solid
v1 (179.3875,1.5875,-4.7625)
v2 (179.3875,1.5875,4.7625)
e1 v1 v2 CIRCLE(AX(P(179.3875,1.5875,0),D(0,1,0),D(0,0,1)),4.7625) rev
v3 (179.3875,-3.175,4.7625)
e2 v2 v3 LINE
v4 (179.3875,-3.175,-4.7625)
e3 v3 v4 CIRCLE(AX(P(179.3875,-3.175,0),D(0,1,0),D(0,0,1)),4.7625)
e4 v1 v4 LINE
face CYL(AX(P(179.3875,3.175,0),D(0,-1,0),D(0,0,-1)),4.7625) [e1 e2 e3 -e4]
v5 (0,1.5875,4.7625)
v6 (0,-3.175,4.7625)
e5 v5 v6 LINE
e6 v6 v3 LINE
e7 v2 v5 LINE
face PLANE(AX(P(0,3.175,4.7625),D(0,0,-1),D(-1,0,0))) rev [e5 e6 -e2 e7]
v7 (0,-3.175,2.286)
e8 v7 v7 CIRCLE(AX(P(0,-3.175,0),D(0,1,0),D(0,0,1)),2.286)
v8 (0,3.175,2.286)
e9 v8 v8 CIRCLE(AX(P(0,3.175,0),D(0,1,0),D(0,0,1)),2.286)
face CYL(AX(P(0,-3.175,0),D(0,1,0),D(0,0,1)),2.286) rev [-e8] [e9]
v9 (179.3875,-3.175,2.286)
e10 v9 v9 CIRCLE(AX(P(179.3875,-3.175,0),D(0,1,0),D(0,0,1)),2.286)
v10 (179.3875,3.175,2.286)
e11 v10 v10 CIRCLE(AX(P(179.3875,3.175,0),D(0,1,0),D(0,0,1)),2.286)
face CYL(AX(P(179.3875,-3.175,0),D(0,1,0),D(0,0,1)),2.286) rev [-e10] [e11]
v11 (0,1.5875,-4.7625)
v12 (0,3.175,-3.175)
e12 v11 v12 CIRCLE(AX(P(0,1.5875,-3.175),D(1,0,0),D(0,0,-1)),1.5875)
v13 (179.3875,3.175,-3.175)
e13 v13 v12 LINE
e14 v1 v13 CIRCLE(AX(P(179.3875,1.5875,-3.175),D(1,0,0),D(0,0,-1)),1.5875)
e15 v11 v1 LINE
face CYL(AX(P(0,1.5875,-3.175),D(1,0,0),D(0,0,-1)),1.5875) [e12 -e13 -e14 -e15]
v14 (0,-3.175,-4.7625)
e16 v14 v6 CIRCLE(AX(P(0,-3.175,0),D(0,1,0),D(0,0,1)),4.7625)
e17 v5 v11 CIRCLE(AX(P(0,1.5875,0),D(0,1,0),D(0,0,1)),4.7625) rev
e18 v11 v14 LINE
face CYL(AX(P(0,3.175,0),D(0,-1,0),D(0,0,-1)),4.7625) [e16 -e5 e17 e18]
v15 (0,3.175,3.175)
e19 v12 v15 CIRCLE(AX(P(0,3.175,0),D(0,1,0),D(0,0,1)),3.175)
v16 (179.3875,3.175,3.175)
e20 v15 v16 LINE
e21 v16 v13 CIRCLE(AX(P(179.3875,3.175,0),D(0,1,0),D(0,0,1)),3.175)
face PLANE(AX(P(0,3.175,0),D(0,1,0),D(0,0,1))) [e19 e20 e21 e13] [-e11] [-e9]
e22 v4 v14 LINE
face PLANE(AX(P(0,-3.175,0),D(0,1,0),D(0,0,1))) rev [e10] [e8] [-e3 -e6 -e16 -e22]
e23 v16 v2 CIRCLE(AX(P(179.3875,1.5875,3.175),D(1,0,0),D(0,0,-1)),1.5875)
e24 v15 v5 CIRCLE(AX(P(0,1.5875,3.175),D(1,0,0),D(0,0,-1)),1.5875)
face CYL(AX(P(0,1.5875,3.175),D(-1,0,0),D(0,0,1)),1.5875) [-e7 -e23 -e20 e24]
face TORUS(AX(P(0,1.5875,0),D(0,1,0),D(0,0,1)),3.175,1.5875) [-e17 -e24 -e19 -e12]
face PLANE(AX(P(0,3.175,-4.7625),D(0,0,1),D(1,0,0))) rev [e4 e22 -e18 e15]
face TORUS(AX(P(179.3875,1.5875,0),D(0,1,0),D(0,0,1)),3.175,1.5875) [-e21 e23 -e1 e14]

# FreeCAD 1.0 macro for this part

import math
import FreeCAD as App
import Part
import Sketcher
Q = App.Units.Quantity


def edges_at(feature, points):
    """Names of the edges that pass closest to the given points."""
    edges = feature.Shape.Edges
    near = lambda p: min(range(len(edges)), key=lambda i: edges[i].distToShape(Part.Vertex(*p))[0])
    return sorted({f"Edge{near(p) + 1}" for p in points})

doc = App.newDocument("Part")
body = doc.addObject("PartDesign::Body", "Body")

sketch1 = body.newObject("Sketcher::SketchObject", "Sketch")
sketch1.AttachmentSupport = (doc.getObject("XZ_Plane"), [""])
sketch1.MapMode = "FlatFace"
sketch1.addGeometry([
    Part.LineSegment(App.Vector(179.4, -4.8, 0), App.Vector(0, -4.8, 0)),
    Part.ArcOfCircle(Part.Circle(App.Vector(0, 0, 0), App.Vector(0, 0, 1), 4.8), math.radians(90), math.radians(270)),
    Part.LineSegment(App.Vector(0, 4.8, 0), App.Vector(179.4, 4.8, 0)),
    Part.ArcOfCircle(Part.Circle(App.Vector(179.4, 0, 0), App.Vector(0, 0, 1), 4.8), math.radians(-90), math.radians(90)),
], False)
sketch1.addConstraint([
    Sketcher.Constraint("Tangent", 0, 2, 1, 2),
    Sketcher.Constraint("Tangent", 1, 1, 2, 1),
    Sketcher.Constraint("Tangent", 2, 2, 3, 2),
    Sketcher.Constraint("Tangent", 3, 1, 0, 1),
    Sketcher.Constraint("Horizontal", 0),
    Sketcher.Constraint("Horizontal", 2),
    Sketcher.Constraint("Coincident", 1, 3, -1, 1),
    Sketcher.Constraint("Radius", 1, Q("0.1875 in")),
    Sketcher.Constraint("DistanceX", 0, 2, 0, 1, Q("7.0625 in")),
])
pad1 = body.newObject("PartDesign::Pad", "Pad")
pad1.Profile = sketch1
pad1.Length = Q("0.25 in")
pad1.Midplane = True

sketch2 = body.newObject("Sketcher::SketchObject", "Sketch001")
sketch2.AttachmentSupport = (doc.getObject("XZ_Plane"), [""])
sketch2.MapMode = "FlatFace"
sketch2.AttachmentOffset = App.Placement(App.Vector(0, 0, -0.125 * 25.4), App.Rotation())
sketch2.addGeometry([
    Part.Circle(App.Vector(0, 0, 0), App.Vector(0, 0, 1), 2.3),
    Part.Circle(App.Vector(179.4, 0, 0), App.Vector(0, 0, 1), 2.3),
], False)
sketch2.addConstraint([
    Sketcher.Constraint("Coincident", 0, 3, -1, 1),
    Sketcher.Constraint("Equal", 0, 1),
    Sketcher.Constraint("PointOnObject", 1, 3, -1),
    Sketcher.Constraint("Diameter", 0, Q("0.18 in")),
    Sketcher.Constraint("DistanceX", -1, 1, 1, 3, Q("7.0625 in")),
])
pocket1 = body.newObject("PartDesign::Pocket", "Pocket")
pocket1.Profile = sketch2
pocket1.Type = "ThroughAll"
pocket1.Reversed = True
doc.recompute()

fillet = body.newObject("PartDesign::Fillet", "Fillet")
fillet.Base = (pocket1, edges_at(pocket1, [
    (184.15, 3.175, 0),
    (89.694, 3.175, -4.763),
    (-4.763, 3.175, 0),
    (89.694, 3.175, 4.763),
]))
fillet.Radius = Q("0.0625 in")

doc.recompute()
